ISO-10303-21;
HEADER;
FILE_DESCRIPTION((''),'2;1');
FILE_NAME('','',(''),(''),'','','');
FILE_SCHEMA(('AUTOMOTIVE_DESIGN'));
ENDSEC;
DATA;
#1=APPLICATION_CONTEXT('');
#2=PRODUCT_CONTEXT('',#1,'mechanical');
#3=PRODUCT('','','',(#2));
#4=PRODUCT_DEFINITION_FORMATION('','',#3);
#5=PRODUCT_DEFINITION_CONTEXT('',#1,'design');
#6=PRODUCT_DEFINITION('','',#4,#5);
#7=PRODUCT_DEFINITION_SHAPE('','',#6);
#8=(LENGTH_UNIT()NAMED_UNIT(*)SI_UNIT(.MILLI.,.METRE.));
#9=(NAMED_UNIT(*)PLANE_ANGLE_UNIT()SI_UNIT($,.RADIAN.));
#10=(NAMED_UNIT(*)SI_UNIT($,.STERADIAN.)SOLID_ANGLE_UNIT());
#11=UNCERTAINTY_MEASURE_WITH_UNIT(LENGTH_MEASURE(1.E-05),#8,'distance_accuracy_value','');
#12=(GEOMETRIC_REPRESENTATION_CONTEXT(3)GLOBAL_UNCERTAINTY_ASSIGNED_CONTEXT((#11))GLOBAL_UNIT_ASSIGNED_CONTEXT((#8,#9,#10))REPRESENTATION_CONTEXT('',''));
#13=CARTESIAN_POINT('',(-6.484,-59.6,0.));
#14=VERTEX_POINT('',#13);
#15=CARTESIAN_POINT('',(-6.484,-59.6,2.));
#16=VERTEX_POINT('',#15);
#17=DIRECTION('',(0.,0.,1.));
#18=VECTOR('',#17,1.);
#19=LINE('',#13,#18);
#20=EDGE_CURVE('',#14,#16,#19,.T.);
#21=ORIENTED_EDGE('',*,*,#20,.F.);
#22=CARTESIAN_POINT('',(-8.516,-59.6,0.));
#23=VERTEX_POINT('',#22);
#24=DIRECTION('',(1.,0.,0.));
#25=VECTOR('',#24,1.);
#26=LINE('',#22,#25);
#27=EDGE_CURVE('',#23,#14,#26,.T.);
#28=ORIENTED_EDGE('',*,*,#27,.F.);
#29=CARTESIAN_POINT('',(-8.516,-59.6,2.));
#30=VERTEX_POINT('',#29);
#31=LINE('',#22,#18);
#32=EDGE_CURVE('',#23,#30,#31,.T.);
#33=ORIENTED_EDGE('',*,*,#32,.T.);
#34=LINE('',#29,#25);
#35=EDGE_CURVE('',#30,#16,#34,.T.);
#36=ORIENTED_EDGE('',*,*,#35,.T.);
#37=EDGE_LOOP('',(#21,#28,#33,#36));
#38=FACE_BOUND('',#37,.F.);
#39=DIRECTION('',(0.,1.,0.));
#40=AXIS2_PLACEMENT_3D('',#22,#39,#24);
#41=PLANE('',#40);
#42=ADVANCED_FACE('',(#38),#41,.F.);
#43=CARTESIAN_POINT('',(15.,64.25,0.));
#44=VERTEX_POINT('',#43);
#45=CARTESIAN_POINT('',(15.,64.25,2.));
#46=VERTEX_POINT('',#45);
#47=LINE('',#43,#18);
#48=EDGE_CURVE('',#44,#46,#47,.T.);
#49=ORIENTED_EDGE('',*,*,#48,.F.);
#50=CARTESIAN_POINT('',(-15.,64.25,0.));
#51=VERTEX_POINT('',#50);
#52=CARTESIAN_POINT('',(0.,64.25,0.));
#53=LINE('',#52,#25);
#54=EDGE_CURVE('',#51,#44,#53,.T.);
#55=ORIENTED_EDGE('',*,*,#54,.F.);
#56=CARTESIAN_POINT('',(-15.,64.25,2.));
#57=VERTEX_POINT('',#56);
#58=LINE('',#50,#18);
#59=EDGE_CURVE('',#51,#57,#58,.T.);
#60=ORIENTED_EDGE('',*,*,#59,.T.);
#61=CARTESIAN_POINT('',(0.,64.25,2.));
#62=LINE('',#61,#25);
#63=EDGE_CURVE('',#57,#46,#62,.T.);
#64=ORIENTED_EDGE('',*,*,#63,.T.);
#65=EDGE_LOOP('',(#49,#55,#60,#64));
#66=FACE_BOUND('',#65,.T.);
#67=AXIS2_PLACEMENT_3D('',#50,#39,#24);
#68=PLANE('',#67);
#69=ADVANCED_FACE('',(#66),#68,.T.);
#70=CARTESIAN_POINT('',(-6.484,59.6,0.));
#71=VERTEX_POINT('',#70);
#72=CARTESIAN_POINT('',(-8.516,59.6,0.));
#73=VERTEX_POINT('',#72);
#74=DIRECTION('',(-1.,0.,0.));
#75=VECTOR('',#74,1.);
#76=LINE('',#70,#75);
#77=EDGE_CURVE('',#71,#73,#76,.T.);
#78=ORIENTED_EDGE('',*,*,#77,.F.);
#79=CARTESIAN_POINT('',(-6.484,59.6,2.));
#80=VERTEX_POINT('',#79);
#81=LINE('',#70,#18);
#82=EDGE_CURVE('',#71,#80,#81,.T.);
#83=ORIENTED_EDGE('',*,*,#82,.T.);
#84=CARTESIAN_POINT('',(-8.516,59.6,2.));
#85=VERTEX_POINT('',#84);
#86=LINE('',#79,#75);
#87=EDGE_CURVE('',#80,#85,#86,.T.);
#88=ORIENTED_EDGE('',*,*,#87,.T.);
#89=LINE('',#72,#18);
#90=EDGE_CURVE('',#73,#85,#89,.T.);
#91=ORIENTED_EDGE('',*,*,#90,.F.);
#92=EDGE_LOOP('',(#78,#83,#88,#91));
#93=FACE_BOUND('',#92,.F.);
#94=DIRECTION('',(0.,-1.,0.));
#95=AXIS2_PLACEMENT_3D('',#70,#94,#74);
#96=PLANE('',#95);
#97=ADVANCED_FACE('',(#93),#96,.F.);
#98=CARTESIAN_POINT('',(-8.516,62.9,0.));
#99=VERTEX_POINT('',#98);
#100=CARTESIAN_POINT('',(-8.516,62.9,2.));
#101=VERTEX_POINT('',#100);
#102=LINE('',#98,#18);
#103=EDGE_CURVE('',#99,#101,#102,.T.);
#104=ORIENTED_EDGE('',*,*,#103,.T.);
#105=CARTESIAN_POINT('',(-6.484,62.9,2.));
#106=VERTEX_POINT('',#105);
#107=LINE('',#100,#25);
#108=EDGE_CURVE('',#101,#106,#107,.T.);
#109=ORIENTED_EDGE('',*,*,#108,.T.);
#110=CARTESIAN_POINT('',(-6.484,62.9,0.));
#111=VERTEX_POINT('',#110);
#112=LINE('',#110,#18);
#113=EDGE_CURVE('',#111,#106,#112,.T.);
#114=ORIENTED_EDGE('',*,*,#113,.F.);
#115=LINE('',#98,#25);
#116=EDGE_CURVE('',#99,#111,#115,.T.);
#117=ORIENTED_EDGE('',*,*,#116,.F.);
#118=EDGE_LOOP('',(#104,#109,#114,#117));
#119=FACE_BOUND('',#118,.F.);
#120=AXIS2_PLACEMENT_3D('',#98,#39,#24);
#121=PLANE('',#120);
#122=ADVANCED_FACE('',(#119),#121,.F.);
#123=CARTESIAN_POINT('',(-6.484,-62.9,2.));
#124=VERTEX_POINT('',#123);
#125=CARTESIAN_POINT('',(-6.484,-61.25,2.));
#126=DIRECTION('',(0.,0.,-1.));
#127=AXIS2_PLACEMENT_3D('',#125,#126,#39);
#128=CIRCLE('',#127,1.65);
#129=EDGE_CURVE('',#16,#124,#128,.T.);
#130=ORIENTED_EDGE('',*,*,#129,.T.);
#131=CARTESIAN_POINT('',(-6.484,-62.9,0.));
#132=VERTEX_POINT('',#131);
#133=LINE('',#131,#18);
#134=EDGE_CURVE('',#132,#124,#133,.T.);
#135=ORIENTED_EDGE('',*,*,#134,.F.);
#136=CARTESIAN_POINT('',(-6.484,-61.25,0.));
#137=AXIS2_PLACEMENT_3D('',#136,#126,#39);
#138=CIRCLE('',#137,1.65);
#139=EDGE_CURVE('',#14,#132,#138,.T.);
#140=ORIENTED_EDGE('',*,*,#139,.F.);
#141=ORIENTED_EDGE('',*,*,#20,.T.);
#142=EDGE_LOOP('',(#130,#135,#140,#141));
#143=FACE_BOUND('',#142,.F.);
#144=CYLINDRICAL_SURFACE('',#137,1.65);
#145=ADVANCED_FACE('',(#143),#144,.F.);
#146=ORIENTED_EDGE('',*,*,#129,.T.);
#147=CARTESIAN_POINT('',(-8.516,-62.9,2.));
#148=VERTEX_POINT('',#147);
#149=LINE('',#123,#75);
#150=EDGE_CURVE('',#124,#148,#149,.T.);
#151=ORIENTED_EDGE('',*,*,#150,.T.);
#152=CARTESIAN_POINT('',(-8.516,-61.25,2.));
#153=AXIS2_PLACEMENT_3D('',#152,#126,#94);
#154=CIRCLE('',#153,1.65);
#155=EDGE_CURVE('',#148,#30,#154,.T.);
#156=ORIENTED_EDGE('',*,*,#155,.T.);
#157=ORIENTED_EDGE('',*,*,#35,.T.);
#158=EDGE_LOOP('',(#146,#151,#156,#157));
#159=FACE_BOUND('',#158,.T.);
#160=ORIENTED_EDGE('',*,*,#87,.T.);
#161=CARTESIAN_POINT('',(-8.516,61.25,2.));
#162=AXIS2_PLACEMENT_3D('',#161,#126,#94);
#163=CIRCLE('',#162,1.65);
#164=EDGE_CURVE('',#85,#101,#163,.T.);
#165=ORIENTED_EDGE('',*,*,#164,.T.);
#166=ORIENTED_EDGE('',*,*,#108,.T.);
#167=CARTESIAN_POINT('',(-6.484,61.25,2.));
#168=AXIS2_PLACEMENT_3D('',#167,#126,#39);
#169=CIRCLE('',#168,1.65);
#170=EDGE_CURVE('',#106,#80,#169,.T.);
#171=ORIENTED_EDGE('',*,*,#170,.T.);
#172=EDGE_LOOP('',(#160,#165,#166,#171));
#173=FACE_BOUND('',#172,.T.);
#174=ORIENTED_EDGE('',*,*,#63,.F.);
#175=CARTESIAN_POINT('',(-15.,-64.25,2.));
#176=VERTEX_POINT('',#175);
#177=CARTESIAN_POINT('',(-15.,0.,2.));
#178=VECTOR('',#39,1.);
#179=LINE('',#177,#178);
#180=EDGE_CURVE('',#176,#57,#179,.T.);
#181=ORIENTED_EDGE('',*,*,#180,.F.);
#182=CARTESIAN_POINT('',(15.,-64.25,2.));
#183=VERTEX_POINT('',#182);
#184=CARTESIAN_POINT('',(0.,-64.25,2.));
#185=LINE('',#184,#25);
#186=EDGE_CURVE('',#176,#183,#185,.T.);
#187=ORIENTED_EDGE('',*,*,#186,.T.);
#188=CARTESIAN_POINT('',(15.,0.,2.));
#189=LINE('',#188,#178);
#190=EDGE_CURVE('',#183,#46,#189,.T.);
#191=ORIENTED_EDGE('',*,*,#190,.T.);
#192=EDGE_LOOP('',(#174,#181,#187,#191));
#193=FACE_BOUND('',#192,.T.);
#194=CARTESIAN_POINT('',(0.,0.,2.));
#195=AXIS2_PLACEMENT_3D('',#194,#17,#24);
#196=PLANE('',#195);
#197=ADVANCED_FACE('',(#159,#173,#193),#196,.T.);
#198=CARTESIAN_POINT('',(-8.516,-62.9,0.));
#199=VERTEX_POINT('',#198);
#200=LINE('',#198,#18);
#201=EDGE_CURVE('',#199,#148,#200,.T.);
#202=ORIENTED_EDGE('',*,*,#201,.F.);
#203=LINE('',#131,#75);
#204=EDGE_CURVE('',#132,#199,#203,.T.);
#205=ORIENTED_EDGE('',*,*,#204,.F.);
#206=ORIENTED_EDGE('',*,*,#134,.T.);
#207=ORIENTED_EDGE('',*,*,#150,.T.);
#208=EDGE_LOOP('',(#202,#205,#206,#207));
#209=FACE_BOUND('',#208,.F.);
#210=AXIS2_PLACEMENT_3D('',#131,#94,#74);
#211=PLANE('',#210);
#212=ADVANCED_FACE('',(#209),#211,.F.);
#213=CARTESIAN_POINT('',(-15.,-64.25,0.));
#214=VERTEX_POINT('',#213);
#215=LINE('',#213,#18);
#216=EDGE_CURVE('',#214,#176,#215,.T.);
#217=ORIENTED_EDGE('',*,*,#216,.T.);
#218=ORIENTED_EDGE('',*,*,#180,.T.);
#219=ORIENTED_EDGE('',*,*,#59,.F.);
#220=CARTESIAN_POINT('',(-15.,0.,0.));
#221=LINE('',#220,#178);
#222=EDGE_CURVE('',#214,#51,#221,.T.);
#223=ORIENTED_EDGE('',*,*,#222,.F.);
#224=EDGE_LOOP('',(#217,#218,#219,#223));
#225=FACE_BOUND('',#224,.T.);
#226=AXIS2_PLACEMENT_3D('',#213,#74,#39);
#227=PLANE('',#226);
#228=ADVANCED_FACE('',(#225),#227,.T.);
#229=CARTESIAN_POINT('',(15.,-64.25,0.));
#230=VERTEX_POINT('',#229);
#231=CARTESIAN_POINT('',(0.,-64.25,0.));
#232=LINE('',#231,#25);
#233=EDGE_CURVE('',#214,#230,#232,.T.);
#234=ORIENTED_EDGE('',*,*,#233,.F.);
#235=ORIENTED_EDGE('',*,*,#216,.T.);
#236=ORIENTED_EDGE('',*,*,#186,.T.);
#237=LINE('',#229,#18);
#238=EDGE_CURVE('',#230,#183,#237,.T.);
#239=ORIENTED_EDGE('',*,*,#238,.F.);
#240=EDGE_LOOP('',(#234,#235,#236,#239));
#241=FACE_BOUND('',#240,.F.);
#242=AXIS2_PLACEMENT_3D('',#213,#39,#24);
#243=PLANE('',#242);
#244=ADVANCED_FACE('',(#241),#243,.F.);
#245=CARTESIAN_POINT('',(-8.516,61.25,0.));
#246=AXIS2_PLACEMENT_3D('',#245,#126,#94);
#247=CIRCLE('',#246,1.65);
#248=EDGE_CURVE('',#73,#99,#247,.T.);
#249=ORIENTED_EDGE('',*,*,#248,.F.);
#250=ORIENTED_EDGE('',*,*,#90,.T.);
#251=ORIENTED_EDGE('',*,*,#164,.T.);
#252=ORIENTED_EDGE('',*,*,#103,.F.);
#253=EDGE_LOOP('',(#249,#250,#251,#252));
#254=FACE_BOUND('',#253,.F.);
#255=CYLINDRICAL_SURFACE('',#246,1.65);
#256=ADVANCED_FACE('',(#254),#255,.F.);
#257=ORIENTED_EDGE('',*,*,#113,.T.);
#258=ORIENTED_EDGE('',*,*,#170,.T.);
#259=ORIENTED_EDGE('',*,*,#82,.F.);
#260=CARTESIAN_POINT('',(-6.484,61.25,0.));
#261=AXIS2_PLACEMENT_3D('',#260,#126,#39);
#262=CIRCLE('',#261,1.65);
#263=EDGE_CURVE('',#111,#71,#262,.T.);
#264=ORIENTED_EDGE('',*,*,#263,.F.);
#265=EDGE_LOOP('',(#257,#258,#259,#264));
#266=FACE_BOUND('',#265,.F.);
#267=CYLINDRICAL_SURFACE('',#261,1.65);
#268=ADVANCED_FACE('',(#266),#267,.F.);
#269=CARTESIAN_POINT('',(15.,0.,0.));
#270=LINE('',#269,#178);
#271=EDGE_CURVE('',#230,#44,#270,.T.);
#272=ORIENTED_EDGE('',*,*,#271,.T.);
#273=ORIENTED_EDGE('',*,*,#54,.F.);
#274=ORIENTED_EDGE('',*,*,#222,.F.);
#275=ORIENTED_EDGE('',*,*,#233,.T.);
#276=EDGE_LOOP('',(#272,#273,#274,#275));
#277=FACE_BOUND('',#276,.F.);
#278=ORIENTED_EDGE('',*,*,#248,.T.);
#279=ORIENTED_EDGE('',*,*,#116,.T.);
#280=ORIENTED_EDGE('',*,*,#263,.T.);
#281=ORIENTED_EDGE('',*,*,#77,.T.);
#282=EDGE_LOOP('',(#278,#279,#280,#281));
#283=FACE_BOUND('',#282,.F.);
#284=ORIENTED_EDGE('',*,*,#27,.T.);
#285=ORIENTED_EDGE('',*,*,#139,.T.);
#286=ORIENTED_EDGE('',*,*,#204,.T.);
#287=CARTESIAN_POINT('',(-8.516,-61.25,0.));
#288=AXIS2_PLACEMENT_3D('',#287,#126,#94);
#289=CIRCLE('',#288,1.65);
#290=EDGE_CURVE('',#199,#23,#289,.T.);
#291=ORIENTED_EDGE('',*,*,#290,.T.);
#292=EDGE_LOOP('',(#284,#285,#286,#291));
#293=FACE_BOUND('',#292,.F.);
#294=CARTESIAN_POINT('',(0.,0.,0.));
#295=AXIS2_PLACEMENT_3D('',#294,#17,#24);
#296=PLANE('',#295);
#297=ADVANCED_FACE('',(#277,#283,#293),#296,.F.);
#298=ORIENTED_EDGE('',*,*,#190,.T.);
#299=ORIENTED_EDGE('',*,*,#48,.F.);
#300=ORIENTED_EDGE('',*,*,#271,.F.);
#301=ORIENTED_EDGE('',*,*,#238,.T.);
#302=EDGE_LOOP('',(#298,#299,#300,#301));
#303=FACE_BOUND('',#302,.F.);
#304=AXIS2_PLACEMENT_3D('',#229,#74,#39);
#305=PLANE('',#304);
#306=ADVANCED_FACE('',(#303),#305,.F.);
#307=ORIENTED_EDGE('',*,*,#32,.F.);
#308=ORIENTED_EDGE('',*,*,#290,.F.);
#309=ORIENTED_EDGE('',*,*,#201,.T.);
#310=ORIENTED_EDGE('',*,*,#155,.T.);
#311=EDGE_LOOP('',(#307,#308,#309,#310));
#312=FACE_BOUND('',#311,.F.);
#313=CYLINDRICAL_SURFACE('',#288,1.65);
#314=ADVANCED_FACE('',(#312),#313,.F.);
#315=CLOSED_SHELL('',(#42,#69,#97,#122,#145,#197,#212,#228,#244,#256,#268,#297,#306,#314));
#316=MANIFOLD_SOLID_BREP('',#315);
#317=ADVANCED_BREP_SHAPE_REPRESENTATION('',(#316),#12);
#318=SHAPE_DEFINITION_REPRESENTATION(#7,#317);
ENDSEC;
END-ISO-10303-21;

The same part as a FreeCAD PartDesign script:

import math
import FreeCAD as App
import Part
import Sketcher
Q = App.Units.Quantity


def add_polygon(sketch, points):
    """Adds a closed chain of lines whose ends are joined by coincident constraints."""
    first, n = sketch.GeometryCount, len(points)
    for a, b in zip(points, points[1:] + points[:1]):
        sketch.addGeometry(Part.LineSegment(App.Vector(*a, 0), App.Vector(*b, 0)), False)
    for i in range(n):
        sketch.addConstraint(Sketcher.Constraint("Coincident", first + i, 2, first + (i + 1) % n, 1))

doc = App.newDocument("Part")
params = doc.addObject("Spreadsheet::Sheet", "Params")
for row, (alias, value) in enumerate([
    ("sketch1_width", "30 mm"),
    ("sketch1_radius", "1.65 mm"),
    ("sketch1_height", "128.5 mm"),
    ("pad1_length", "2 mm"),
], start=1):
    params.set(f"A{row}", alias)
    params.set(f"B{row}", "=" + value)
    params.setAlias(f"B{row}", alias)

body = doc.addObject("PartDesign::Body", "Body")

# Sketch on XY plane
sketch1 = body.newObject("Sketcher::SketchObject", "Sketch")
sketch1.AttachmentSupport = (doc.getObject("XY_Plane"), [""])
sketch1.MapMode = "FlatFace"
add_polygon(sketch1, [(-15, 64.2), (-15, -64.2), (15, -64.2), (15, 64.2)])  # lines 0-3
sketch1.addGeometry(Part.ArcOfCircle(Part.Circle(App.Vector(-8.5, -61.2, 0), App.Vector(0, 0, 1), 1.6), math.radians(90), math.radians(270)), False)  # 4
sketch1.addGeometry(Part.LineSegment(App.Vector(-8.5, -59.6, 0), App.Vector(-6.5, -59.6, 0)), False)  # 5
sketch1.addGeometry(Part.ArcOfCircle(Part.Circle(App.Vector(-6.5, -61.2, 0), App.Vector(0, 0, 1), 1.6), math.radians(-90), math.radians(90)), False)  # 6
sketch1.addGeometry(Part.LineSegment(App.Vector(-6.5, -62.9, 0), App.Vector(-8.5, -62.9, 0)), False)  # 7
sketch1.addGeometry(Part.ArcOfCircle(Part.Circle(App.Vector(-8.5, 61.2, 0), App.Vector(0, 0, 1), 1.6), math.radians(90), math.radians(270)), False)  # 8
sketch1.addGeometry(Part.LineSegment(App.Vector(-8.5, 62.9, 0), App.Vector(-6.5, 62.9, 0)), False)  # 9
sketch1.addGeometry(Part.ArcOfCircle(Part.Circle(App.Vector(-6.5, 61.2, 0), App.Vector(0, 0, 1), 1.6), math.radians(-90), math.radians(90)), False)  # 10
sketch1.addGeometry(Part.LineSegment(App.Vector(-6.5, 59.6, 0), App.Vector(-8.5, 59.6, 0)), False)  # 11
sketch1.addConstraint(Sketcher.Constraint("Tangent", 4, 1, 5, 1))
sketch1.addConstraint(Sketcher.Constraint("Tangent", 5, 2, 6, 2))
sketch1.addConstraint(Sketcher.Constraint("Tangent", 6, 1, 7, 1))
sketch1.addConstraint(Sketcher.Constraint("Tangent", 7, 2, 4, 2))
sketch1.addConstraint(Sketcher.Constraint("Tangent", 8, 1, 9, 1))
sketch1.addConstraint(Sketcher.Constraint("Tangent", 9, 2, 10, 2))
sketch1.addConstraint(Sketcher.Constraint("Tangent", 10, 1, 11, 1))
sketch1.addConstraint(Sketcher.Constraint("Tangent", 11, 2, 8, 2))
sketch1.addConstraint(Sketcher.Constraint("Vertical", 0))
sketch1.addConstraint(Sketcher.Constraint("Horizontal", 1))
sketch1.addConstraint(Sketcher.Constraint("Vertical", 2))
sketch1.addConstraint(Sketcher.Constraint("Horizontal", 3))
sketch1.addConstraint(Sketcher.Constraint("Horizontal", 5))
sketch1.addConstraint(Sketcher.Constraint("Horizontal", 7))
sketch1.addConstraint(Sketcher.Constraint("Horizontal", 9))
sketch1.addConstraint(Sketcher.Constraint("Horizontal", 11))
sketch1.addConstraint(Sketcher.Constraint("Equal", 6, 8))
sketch1.addConstraint(Sketcher.Constraint("Symmetric", 0, 2, 2, 2, -1, 1))
sketch1.addConstraint(Sketcher.Constraint("Symmetric", 4, 3, 8, 3, -1))
sketch1.addConstraint(Sketcher.Constraint("Vertical", 6, 3, 10, 3))
sketch1.addConstraint(Sketcher.Constraint("DistanceX", 1, 1, 1, 2, Q("30 mm")))
sketch1.addConstraint(Sketcher.Constraint("Radius", 4, Q("1.65 mm")))
sketch1.addConstraint(Sketcher.Constraint("DistanceY", 0, 2, 0, 1, Q("128.5 mm")))
sketch1.addConstraint(Sketcher.Constraint("DistanceY", 0, 2, 4, 3, Q("3 mm")))
sketch1.addConstraint(Sketcher.Constraint("DistanceX", 5, 1, 5, 2, Q("2.032 mm")))
sketch1.addConstraint(Sketcher.Constraint("DistanceX", 4, 3, -1, 1, Q("8.516 mm")))
sketch1.setExpression("Constraints[24]", "Params.sketch1_width")
sketch1.setExpression("Constraints[25]", "Params.sketch1_radius")
sketch1.setExpression("Constraints[26]", "Params.sketch1_height")
pad1 = body.newObject("PartDesign::Pad", "Pad")
pad1.Profile = sketch1
pad1.setExpression("Length", "Params.pad1_length")

doc.recompute()
